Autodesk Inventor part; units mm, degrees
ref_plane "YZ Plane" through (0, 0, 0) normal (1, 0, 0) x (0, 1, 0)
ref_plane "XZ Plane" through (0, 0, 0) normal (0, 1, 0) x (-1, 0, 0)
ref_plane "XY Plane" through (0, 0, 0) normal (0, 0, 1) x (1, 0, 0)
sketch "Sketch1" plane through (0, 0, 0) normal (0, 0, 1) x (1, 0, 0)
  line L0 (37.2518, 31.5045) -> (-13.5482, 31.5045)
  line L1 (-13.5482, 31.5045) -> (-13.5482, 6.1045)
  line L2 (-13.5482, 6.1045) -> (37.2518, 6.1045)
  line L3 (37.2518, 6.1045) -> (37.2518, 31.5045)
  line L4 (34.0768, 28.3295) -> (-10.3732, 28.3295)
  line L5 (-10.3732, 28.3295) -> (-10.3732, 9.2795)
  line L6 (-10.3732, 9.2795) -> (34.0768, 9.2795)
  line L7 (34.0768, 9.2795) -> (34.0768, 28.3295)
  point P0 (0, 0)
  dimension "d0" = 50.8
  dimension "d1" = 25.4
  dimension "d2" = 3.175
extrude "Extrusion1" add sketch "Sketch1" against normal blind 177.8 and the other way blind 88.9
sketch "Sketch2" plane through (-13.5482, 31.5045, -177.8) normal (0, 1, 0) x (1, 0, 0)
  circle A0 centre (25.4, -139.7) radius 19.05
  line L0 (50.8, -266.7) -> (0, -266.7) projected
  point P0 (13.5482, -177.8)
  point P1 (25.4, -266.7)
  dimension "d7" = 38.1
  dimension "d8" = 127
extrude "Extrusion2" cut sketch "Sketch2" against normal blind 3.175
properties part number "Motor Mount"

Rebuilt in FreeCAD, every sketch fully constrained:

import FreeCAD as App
import Part
import Sketcher

V = App.Vector
Q = App.Units.Quantity


def add_polygon(sketch, points):
    """Adds a closed chain of lines whose ends are joined by coincident constraints."""
    first, n = sketch.GeometryCount, len(points)
    for a, b in zip(points, points[1:] + points[:1]):
        sketch.addGeometry(Part.LineSegment(App.Vector(*a, 0), App.Vector(*b, 0)), False)
    for i in range(n):
        sketch.addConstraint(Sketcher.Constraint("Coincident", first + i, 2, first + (i + 1) % n, 1))

doc = App.newDocument("Part")
params = doc.addObject("Spreadsheet::Sheet", "Params")
for row, (alias, value) in enumerate([
    ("sketch1_width", "2 in"),
    ("sketch1_height", "1 in"),
    ("pad1_length", "7 in"),
    ("pad1_length2", "3.5 in"),
    ("sketch2_diameter", "1.5 in"),
    ("pocket1_length", "0.125 in"),
], start=1):
    params.set(f"A{row}", alias)
    params.set(f"B{row}", "=" + value)
    params.setAlias(f"B{row}", alias)

body = doc.addObject("PartDesign::Body", "Body")

# Sketch on XY plane
sketch1 = body.newObject("Sketcher::SketchObject", "Sketch")
sketch1.AttachmentSupport = (doc.getObject("XY_Plane"), [""])
sketch1.MapMode = "FlatFace"
add_polygon(sketch1, [(37, 6), (37, 32), (-14, 32), (-14, 6)])  # lines 0-3
add_polygon(sketch1, [(-10, 28), (34, 28), (34, 9), (-10, 9)])  # lines 4-7
sketch1.addConstraint([
    Sketcher.Constraint("Vertical", 0),
    Sketcher.Constraint("Horizontal", 1),
    Sketcher.Constraint("Vertical", 2),
    Sketcher.Constraint("Horizontal", 3),
    Sketcher.Constraint("Horizontal", 4),
    Sketcher.Constraint("Vertical", 5),
    Sketcher.Constraint("Horizontal", 6),
    Sketcher.Constraint("Vertical", 7),
    Sketcher.Constraint("DistanceX", 1, 2, 1, 1, Q("2 in")),
    Sketcher.Constraint("DistanceY", 0, 1, 0, 2, Q("1 in")),
    Sketcher.Constraint("DistanceX", 4, 2, 0, 2, Q("0.125 in")),
    Sketcher.Constraint("DistanceY", 4, 2, 0, 2, Q("0.125 in")),
    Sketcher.Constraint("DistanceY", 3, 2, 5, 2, Q("0.125 in")),
    Sketcher.Constraint("DistanceX", 2, 2, 6, 2, Q("0.125 in")),
    Sketcher.Constraint("DistanceX", -1, 1, 0, 2, Q("1.4666 in")),
    Sketcher.Constraint("DistanceY", -1, 1, 0, 2, Q("31.5045 mm")),
])
sketch1.setExpression("Constraints[16]", "Params.sketch1_width")
sketch1.setExpression("Constraints[17]", "Params.sketch1_height")
pad1 = body.newObject("PartDesign::Pad", "Pad")
pad1.Profile = sketch1
pad1.Type = "TwoLengths"
pad1.setExpression("Length", "Params.pad1_length")
pad1.setExpression("Length2", "Params.pad1_length2")
pad1.Reversed = True

# Sketch on XZ plane
sketch2 = body.newObject("Sketcher::SketchObject", "Sketch001")
sketch2.AttachmentSupport = (doc.getObject("XZ_Plane"), [""])
sketch2.MapMode = "FlatFace"
sketch2.AttachmentOffset = App.Placement(V(0, 0, -31.5045), App.Rotation())
sketch2.addGeometry(Part.Circle(V(12, -38, 0), V(0, 0, 1), 19), False)
sketch2.addConstraint([
    Sketcher.Constraint("Diameter", 0, Q("1.5 in")),
    Sketcher.Constraint("DistanceY", 0, 3, -1, 1, Q("1.5 in")),
    Sketcher.Constraint("DistanceX", -1, 1, 0, 3, Q("0.4666 in")),
])
sketch2.setExpression("Constraints[0]", "Params.sketch2_diameter")
pocket1 = body.newObject("PartDesign::Pocket", "Pocket")
pocket1.Profile = sketch2
pocket1.setExpression("Length", "Params.pocket1_length")
pocket1.Reversed = True

doc.recompute()
